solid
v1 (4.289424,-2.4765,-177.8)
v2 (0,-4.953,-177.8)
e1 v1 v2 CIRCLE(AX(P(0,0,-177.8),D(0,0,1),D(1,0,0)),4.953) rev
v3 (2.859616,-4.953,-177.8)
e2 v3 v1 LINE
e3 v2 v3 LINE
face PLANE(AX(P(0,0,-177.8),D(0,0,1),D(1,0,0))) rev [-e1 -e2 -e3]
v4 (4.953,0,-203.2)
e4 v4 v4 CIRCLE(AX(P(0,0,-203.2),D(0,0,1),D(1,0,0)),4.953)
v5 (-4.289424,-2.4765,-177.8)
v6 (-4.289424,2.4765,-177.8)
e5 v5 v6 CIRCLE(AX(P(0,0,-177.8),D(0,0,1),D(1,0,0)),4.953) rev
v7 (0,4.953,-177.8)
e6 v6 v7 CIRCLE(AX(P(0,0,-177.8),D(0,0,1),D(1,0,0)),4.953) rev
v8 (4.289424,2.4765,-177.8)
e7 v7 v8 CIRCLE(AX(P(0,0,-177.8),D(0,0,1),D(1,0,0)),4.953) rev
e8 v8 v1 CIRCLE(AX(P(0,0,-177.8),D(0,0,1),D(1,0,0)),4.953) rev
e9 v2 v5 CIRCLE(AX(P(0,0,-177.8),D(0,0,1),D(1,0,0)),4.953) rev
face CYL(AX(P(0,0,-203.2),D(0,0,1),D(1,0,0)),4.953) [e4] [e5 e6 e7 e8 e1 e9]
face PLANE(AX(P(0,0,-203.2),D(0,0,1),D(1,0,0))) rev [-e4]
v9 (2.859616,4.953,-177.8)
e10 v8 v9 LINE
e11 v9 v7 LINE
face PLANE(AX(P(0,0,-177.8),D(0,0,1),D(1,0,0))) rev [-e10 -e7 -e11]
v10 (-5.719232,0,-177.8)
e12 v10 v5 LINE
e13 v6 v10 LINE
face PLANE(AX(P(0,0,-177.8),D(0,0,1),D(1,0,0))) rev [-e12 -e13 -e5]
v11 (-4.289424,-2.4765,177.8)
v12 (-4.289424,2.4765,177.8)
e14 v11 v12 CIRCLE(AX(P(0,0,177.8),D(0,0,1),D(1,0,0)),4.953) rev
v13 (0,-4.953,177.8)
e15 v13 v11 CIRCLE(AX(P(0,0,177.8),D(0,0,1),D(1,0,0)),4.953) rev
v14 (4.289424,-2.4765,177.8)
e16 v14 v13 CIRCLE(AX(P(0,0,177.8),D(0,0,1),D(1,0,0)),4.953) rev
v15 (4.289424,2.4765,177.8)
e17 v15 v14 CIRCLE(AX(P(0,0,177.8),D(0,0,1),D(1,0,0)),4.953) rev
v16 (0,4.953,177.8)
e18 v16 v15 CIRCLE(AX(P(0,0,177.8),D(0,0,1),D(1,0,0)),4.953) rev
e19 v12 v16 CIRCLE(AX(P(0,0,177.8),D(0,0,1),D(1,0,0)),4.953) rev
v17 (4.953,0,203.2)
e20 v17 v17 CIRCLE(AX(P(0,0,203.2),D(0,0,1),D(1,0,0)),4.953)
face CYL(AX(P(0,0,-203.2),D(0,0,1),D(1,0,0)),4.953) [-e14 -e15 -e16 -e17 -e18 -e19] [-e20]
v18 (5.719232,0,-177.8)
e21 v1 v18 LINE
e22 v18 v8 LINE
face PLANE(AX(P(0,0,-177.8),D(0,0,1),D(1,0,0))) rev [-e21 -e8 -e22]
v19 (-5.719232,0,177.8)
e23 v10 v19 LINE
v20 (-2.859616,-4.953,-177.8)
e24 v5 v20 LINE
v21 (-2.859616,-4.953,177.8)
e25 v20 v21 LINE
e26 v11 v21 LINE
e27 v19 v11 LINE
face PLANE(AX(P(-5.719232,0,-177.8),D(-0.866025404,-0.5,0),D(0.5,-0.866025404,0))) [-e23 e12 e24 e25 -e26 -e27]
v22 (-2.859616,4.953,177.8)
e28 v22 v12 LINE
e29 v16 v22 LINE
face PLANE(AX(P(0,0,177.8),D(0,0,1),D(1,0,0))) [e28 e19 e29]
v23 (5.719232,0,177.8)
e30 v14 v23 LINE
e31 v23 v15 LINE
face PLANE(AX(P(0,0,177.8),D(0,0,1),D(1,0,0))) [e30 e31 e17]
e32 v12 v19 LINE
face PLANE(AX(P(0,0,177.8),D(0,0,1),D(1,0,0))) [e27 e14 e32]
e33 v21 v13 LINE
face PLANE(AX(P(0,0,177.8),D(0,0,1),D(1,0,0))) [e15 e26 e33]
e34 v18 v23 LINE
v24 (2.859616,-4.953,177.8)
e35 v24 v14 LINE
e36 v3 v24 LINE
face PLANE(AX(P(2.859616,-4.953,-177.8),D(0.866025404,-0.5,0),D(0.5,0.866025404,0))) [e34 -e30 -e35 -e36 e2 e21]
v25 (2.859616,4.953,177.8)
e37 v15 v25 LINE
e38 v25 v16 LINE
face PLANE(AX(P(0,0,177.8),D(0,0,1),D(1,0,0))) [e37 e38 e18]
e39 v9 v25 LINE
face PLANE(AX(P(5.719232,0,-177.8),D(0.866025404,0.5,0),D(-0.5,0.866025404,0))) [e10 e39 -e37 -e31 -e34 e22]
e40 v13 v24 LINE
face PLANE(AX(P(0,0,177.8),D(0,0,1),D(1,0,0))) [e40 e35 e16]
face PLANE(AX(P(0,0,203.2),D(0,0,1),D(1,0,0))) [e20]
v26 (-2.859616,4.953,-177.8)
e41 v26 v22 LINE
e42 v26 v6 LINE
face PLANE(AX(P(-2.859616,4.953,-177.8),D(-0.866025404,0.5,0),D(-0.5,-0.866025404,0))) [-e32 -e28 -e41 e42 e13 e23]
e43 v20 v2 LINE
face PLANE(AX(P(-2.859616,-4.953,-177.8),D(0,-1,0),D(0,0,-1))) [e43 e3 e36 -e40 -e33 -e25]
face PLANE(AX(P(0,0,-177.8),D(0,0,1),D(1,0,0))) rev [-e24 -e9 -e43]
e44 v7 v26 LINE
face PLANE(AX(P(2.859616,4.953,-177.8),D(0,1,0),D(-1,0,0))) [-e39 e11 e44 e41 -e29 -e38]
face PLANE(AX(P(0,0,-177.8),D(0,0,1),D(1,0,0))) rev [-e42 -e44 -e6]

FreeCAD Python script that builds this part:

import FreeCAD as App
import Part
import Sketcher
from FreeCAD import Vector
Q = App.Units.Quantity


def add_polygon(sketch, points):
    """Adds a closed chain of lines whose ends are joined by coincident constraints."""
    first, n = sketch.GeometryCount, len(points)
    for a, b in zip(points, points[1:] + points[:1]):
        sketch.addGeometry(Part.LineSegment(App.Vector(*a, 0), App.Vector(*b, 0)), False)
    for i in range(n):
        sketch.addConstraint(Sketcher.Constraint("Coincident", first + i, 2, first + (i + 1) % n, 1))

doc = App.newDocument("Part")
body = doc.addObject("PartDesign::Body", "Body")

sketch1 = body.newObject("Sketcher::SketchObject", "Sketch")
sketch1.AttachmentSupport = (doc.getObject("XY_Plane"), [""])
sketch1.MapMode = "FlatFace"
sketch1.addGeometry(Part.Circle(Vector(0, 0, 0), Vector(0, 0, 1), 5), False)
sketch1.addConstraint([
    Sketcher.Constraint("Coincident", 0, 3, -1, 1),
    Sketcher.Constraint("Diameter", 0, Q("0.39 in")),
])
pad1 = body.newObject("PartDesign::Pad", "Pad")
pad1.Profile = sketch1
pad1.Type = "TwoLengths"
pad1.Length = Q("8 in")
pad1.Length2 = Q("8 in")

sketch2 = body.newObject("Sketcher::SketchObject", "Sketch001")
sketch2.AttachmentSupport = (doc.getObject("XY_Plane"), [""])
sketch2.MapMode = "FlatFace"
add_polygon(sketch2, [(6, 0), (3, 5), (-3, 5), (-6, 0), (-3, -5), (3, -5)])
sketch2.addConstraint([
    Sketcher.Constraint("Horizontal", 1),
    Sketcher.Constraint("Horizontal", 4),
    Sketcher.Constraint("Symmetric", 0, 2, 3, 2, -1, 1),
    Sketcher.Constraint("Symmetric", 2, 2, 5, 2, -1, 1),
    Sketcher.Constraint("PointOnObject", 2, 2, -1),
    Sketcher.Constraint("Parallel", 2, 5),
    Sketcher.Constraint("Vertical", 1, 2, 3, 2),
    Sketcher.Constraint("Angle", 0, Q("120 deg")),
    Sketcher.Constraint("DistanceY", 3, 2, 1, 2, Q("0.39 in")),
    Sketcher.Constraint("DistanceX", 1, 2, 1, 1, Q("5.719232 mm")),
])
pad2 = body.newObject("PartDesign::Pad", "Pad001")
pad2.Profile = sketch2
pad2.Type = "TwoLengths"
pad2.Length = Q("7 in")
pad2.Length2 = Q("7 in")

doc.recompute()
